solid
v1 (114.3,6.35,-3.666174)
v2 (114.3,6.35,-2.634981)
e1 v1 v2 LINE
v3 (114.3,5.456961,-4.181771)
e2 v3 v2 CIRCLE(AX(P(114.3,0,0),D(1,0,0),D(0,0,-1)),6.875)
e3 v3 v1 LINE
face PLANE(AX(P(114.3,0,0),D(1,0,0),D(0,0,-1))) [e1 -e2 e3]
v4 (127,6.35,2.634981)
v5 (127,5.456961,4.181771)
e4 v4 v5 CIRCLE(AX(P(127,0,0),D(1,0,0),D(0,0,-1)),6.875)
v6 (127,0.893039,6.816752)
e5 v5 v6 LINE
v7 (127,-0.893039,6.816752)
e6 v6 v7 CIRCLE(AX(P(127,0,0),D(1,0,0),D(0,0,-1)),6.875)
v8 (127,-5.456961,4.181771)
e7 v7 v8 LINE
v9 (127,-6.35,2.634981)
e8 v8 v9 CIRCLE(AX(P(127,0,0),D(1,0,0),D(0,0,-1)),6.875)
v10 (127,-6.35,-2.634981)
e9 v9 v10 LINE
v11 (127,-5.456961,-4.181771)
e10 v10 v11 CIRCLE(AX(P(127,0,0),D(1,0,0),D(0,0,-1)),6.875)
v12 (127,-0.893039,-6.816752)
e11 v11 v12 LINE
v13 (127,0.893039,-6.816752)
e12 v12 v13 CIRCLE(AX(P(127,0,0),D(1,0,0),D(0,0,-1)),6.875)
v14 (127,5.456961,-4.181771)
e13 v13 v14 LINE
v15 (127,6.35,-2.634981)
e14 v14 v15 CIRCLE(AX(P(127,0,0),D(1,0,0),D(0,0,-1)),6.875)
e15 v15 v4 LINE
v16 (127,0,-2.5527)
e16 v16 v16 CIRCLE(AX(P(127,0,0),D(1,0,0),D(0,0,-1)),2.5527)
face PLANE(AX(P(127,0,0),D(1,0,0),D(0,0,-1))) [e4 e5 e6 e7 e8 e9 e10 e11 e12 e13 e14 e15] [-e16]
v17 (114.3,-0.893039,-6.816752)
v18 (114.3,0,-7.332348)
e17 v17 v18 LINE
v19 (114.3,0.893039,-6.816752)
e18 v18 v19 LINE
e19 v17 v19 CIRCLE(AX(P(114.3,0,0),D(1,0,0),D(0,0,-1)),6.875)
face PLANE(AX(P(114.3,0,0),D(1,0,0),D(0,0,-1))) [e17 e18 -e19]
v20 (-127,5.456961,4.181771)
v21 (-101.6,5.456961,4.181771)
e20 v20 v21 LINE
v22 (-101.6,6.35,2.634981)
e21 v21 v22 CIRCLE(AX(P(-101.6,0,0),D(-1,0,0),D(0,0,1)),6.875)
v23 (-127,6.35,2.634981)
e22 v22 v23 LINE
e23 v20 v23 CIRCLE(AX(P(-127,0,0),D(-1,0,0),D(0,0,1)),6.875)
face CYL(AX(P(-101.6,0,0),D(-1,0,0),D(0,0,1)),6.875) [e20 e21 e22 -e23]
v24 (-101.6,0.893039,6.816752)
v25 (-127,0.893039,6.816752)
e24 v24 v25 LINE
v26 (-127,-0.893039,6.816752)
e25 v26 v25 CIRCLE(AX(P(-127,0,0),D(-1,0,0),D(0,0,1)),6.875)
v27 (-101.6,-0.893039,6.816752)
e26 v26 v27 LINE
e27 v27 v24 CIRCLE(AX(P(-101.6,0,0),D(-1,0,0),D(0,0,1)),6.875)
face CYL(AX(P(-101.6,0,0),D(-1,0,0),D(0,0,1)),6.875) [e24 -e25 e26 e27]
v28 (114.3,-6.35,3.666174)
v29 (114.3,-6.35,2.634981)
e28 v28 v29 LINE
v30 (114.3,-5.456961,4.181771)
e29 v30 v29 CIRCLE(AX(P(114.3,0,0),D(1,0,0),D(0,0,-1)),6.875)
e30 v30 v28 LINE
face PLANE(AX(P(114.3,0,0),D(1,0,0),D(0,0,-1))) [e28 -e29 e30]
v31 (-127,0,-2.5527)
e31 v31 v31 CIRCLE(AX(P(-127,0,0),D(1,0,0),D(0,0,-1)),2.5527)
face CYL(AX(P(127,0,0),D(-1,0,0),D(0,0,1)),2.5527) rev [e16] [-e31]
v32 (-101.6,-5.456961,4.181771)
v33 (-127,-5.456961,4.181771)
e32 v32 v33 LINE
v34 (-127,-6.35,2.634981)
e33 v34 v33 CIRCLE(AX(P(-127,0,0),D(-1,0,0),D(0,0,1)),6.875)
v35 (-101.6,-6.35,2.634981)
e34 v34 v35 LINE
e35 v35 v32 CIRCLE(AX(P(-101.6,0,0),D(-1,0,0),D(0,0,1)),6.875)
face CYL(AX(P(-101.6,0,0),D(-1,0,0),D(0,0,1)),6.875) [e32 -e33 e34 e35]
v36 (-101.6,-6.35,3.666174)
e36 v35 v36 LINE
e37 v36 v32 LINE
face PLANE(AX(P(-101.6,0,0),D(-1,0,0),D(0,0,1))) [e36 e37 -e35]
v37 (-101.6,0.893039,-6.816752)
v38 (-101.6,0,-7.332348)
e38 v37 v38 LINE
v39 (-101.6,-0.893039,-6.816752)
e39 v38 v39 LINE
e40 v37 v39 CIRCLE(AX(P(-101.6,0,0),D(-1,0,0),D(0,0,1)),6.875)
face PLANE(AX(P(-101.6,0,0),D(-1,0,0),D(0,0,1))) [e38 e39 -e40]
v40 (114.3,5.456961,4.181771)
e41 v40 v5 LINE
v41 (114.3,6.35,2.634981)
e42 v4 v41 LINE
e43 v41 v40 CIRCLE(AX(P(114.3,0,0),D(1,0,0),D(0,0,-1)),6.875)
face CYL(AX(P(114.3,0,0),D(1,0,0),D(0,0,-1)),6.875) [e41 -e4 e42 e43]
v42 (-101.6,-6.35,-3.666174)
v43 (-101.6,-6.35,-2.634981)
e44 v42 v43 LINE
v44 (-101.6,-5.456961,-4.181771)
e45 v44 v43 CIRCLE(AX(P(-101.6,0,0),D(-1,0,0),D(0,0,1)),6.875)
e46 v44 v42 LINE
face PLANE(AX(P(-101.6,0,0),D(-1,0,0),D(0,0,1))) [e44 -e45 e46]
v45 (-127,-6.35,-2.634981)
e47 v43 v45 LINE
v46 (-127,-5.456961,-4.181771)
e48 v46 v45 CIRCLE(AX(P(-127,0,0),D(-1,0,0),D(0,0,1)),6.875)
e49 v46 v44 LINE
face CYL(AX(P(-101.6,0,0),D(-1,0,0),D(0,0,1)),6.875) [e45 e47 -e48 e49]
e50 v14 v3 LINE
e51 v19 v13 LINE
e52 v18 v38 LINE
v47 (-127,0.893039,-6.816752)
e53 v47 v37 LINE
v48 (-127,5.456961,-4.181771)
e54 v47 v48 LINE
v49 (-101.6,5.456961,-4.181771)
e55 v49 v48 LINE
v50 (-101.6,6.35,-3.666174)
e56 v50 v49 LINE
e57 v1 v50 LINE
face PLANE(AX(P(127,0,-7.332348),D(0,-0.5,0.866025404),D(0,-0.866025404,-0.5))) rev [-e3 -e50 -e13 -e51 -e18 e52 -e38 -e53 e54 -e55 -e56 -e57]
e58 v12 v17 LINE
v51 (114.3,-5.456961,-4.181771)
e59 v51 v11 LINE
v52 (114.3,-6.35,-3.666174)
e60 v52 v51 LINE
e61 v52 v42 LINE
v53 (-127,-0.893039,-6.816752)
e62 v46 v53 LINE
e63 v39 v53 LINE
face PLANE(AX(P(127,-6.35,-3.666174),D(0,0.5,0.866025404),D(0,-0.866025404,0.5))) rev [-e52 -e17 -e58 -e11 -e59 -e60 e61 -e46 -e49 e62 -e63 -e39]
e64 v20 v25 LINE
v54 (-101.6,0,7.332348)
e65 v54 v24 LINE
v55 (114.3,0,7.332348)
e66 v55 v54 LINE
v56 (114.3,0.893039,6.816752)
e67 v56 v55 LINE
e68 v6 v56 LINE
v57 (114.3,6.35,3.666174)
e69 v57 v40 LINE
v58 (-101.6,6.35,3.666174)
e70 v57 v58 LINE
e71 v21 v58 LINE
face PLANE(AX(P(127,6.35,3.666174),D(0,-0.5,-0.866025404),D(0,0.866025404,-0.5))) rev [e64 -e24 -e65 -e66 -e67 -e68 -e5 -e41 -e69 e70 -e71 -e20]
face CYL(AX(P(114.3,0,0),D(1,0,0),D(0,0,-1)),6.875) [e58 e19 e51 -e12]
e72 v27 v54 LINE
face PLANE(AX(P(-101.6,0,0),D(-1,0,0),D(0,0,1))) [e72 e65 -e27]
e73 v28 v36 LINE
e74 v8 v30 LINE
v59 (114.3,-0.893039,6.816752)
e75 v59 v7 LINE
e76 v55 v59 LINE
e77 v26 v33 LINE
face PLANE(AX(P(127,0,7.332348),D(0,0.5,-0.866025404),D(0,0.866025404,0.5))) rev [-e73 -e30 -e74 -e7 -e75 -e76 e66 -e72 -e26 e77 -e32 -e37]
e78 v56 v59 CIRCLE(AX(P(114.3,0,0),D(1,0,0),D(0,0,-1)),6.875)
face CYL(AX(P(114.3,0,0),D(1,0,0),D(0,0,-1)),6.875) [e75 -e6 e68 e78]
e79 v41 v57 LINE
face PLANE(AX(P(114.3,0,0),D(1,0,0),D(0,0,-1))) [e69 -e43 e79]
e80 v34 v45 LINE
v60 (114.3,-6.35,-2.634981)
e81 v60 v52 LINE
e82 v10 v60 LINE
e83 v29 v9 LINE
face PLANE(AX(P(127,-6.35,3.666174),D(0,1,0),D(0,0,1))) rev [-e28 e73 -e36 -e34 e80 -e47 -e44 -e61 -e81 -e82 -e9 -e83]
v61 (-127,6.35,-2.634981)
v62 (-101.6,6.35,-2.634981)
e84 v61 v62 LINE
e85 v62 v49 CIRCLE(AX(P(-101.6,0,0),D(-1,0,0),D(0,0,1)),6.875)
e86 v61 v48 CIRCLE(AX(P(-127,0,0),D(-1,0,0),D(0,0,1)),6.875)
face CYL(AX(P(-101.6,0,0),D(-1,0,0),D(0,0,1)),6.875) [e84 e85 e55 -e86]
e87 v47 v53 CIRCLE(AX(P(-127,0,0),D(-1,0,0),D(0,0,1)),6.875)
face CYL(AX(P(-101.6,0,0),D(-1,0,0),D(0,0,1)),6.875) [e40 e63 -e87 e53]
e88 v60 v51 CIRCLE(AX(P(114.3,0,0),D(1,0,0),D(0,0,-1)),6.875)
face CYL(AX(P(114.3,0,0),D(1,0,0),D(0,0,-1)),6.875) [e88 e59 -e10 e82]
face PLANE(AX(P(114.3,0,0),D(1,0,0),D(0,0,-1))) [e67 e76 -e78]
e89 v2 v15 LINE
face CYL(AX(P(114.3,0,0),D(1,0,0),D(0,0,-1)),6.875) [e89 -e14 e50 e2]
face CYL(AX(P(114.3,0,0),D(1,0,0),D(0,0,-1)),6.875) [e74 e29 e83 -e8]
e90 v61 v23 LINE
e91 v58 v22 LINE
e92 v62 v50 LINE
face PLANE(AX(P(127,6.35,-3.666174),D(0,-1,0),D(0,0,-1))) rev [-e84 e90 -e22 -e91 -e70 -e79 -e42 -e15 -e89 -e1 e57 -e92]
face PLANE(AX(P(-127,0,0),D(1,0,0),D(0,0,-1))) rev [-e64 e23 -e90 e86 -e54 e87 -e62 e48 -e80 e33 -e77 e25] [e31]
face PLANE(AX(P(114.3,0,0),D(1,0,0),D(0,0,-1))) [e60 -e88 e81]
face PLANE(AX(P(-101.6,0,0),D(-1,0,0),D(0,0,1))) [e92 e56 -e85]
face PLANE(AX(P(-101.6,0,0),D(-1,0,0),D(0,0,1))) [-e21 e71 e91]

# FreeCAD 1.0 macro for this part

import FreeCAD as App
import Part
import Sketcher
from FreeCAD import Vector
Q = App.Units.Quantity


def add_polygon(sketch, points):
    """Adds a closed chain of lines whose ends are joined by coincident constraints."""
    first, n = sketch.GeometryCount, len(points)
    for a, b in zip(points, points[1:] + points[:1]):
        sketch.addGeometry(Part.LineSegment(App.Vector(*a, 0), App.Vector(*b, 0)), False)
    for i in range(n):
        sketch.addConstraint(Sketcher.Constraint("Coincident", first + i, 2, first + (i + 1) % n, 1))

doc = App.newDocument("Part")
body = doc.addObject("PartDesign::Body", "Body")

# Sketch on YZ plane
sketch1 = body.newObject("Sketcher::SketchObject", "Sketch")
sketch1.AttachmentSupport = (doc.getObject("YZ_Plane"), [""])
sketch1.MapMode = "FlatFace"
add_polygon(sketch1, [(-6.3, -3.7), (0, -7.3), (6.3, -3.7), (6.3, 3.7), (0, 7.3), (-6.3, 3.7)])  # lines 0-5
sketch1.addGeometry(Part.Circle(Vector(0, 0, 0), Vector(0, 0, 1), 2.6), False)  # 6
sketch1.addConstraint(Sketcher.Constraint("Vertical", 2))
sketch1.addConstraint(Sketcher.Constraint("Vertical", 5))
sketch1.addConstraint(Sketcher.Constraint("Coincident", 6, 3, -1, 1))
sketch1.addConstraint(Sketcher.Constraint("Symmetric", 0, 2, 3, 2, -1, 1))
sketch1.addConstraint(Sketcher.Constraint("Symmetric", 1, 2, 4, 2, -1, 1))
sketch1.addConstraint(Sketcher.Constraint("PointOnObject", 0, 2, -2))
sketch1.addConstraint(Sketcher.Constraint("Parallel", 0, 3))
sketch1.addConstraint(Sketcher.Constraint("Horizontal", 2, 2, 4, 2))
sketch1.addConstraint(Sketcher.Constraint("Diameter", 6, Q("0.201 in")))
sketch1.addConstraint(Sketcher.Constraint("Angle", 0, Q("-30 deg")))
sketch1.addConstraint(Sketcher.Constraint("DistanceX", 4, 2, 2, 2, Q("0.5 in")))
sketch1.addConstraint(Sketcher.Constraint("DistanceY", 2, 1, 2, 2, 7.332348))
pad1 = body.newObject("PartDesign::Pad", "Pad")
pad1.Profile = sketch1
pad1.Length = Q("10 in")
pad1.Midplane = True

# Sketch on YZ plane
sketch2 = body.newObject("Sketcher::SketchObject", "Sketch001")
sketch2.AttachmentSupport = (doc.getObject("YZ_Plane"), [""])
sketch2.MapMode = "FlatFace"
sketch2.AttachmentOffset = App.Placement(Vector(0, 0, -5 * 25.4), App.Rotation())
add_polygon(sketch2, [(33, -34), (-33, -34), (-33, 34), (33, 34)])  # lines 0-3
sketch2.addGeometry(Part.Circle(Vector(0, 0, 0), Vector(0, 0, 1), 7), False)  # 4
sketch2.addConstraint(Sketcher.Constraint("Horizontal", 0))
sketch2.addConstraint(Sketcher.Constraint("Vertical", 1))
sketch2.addConstraint(Sketcher.Constraint("Horizontal", 2))
sketch2.addConstraint(Sketcher.Constraint("Vertical", 3))
sketch2.addConstraint(Sketcher.Constraint("Coincident", 4, 3, -1, 1))
sketch2.addConstraint(Sketcher.Constraint("Symmetric", 0, 2, 2, 2, -1, 1))
sketch2.addConstraint(Sketcher.Constraint("Diameter", 4, 13.75))
sketch2.addConstraint(Sketcher.Constraint("DistanceX", 0, 2, 0, 1, 65.648))
sketch2.addConstraint(Sketcher.Constraint("DistanceY", 1, 1, 1, 2, 67.612))
pocket1 = body.newObject("PartDesign::Pocket", "Pocket")
pocket1.Profile = sketch2
pocket1.Length = Q("1 in")
pocket1.Reversed = True

# Sketch on YZ plane
sketch3 = body.newObject("Sketcher::SketchObject", "Sketch002")
sketch3.AttachmentSupport = (doc.getObject("YZ_Plane"), [""])
sketch3.MapMode = "FlatFace"
sketch3.AttachmentOffset = App.Placement(Vector(0, 0, 5 * 25.4), App.Rotation())
add_polygon(sketch3, [(33, 34), (-33, 34), (-33, -34), (33, -34)])  # lines 0-3
sketch3.addGeometry(Part.Circle(Vector(0, 0, 0), Vector(0, 0, 1), 7), False)  # 4
sketch3.addConstraint(Sketcher.Constraint("Horizontal", 0))
sketch3.addConstraint(Sketcher.Constraint("Vertical", 1))
sketch3.addConstraint(Sketcher.Constraint("Horizontal", 2))
sketch3.addConstraint(Sketcher.Constraint("Vertical", 3))
sketch3.addConstraint(Sketcher.Constraint("Coincident", 4, 3, -1, 1))
sketch3.addConstraint(Sketcher.Constraint("Symmetric", 0, 2, 2, 2, -1, 1))
sketch3.addConstraint(Sketcher.Constraint("Diameter", 4, 13.75))
sketch3.addConstraint(Sketcher.Constraint("DistanceX", 0, 2, 0, 1, 65.648))
sketch3.addConstraint(Sketcher.Constraint("DistanceY", 1, 2, 1, 1, 67.612))
pocket2 = body.newObject("PartDesign::Pocket", "Pocket001")
pocket2.Profile = sketch3
pocket2.Length = Q("0.5 in")

doc.recompute()
